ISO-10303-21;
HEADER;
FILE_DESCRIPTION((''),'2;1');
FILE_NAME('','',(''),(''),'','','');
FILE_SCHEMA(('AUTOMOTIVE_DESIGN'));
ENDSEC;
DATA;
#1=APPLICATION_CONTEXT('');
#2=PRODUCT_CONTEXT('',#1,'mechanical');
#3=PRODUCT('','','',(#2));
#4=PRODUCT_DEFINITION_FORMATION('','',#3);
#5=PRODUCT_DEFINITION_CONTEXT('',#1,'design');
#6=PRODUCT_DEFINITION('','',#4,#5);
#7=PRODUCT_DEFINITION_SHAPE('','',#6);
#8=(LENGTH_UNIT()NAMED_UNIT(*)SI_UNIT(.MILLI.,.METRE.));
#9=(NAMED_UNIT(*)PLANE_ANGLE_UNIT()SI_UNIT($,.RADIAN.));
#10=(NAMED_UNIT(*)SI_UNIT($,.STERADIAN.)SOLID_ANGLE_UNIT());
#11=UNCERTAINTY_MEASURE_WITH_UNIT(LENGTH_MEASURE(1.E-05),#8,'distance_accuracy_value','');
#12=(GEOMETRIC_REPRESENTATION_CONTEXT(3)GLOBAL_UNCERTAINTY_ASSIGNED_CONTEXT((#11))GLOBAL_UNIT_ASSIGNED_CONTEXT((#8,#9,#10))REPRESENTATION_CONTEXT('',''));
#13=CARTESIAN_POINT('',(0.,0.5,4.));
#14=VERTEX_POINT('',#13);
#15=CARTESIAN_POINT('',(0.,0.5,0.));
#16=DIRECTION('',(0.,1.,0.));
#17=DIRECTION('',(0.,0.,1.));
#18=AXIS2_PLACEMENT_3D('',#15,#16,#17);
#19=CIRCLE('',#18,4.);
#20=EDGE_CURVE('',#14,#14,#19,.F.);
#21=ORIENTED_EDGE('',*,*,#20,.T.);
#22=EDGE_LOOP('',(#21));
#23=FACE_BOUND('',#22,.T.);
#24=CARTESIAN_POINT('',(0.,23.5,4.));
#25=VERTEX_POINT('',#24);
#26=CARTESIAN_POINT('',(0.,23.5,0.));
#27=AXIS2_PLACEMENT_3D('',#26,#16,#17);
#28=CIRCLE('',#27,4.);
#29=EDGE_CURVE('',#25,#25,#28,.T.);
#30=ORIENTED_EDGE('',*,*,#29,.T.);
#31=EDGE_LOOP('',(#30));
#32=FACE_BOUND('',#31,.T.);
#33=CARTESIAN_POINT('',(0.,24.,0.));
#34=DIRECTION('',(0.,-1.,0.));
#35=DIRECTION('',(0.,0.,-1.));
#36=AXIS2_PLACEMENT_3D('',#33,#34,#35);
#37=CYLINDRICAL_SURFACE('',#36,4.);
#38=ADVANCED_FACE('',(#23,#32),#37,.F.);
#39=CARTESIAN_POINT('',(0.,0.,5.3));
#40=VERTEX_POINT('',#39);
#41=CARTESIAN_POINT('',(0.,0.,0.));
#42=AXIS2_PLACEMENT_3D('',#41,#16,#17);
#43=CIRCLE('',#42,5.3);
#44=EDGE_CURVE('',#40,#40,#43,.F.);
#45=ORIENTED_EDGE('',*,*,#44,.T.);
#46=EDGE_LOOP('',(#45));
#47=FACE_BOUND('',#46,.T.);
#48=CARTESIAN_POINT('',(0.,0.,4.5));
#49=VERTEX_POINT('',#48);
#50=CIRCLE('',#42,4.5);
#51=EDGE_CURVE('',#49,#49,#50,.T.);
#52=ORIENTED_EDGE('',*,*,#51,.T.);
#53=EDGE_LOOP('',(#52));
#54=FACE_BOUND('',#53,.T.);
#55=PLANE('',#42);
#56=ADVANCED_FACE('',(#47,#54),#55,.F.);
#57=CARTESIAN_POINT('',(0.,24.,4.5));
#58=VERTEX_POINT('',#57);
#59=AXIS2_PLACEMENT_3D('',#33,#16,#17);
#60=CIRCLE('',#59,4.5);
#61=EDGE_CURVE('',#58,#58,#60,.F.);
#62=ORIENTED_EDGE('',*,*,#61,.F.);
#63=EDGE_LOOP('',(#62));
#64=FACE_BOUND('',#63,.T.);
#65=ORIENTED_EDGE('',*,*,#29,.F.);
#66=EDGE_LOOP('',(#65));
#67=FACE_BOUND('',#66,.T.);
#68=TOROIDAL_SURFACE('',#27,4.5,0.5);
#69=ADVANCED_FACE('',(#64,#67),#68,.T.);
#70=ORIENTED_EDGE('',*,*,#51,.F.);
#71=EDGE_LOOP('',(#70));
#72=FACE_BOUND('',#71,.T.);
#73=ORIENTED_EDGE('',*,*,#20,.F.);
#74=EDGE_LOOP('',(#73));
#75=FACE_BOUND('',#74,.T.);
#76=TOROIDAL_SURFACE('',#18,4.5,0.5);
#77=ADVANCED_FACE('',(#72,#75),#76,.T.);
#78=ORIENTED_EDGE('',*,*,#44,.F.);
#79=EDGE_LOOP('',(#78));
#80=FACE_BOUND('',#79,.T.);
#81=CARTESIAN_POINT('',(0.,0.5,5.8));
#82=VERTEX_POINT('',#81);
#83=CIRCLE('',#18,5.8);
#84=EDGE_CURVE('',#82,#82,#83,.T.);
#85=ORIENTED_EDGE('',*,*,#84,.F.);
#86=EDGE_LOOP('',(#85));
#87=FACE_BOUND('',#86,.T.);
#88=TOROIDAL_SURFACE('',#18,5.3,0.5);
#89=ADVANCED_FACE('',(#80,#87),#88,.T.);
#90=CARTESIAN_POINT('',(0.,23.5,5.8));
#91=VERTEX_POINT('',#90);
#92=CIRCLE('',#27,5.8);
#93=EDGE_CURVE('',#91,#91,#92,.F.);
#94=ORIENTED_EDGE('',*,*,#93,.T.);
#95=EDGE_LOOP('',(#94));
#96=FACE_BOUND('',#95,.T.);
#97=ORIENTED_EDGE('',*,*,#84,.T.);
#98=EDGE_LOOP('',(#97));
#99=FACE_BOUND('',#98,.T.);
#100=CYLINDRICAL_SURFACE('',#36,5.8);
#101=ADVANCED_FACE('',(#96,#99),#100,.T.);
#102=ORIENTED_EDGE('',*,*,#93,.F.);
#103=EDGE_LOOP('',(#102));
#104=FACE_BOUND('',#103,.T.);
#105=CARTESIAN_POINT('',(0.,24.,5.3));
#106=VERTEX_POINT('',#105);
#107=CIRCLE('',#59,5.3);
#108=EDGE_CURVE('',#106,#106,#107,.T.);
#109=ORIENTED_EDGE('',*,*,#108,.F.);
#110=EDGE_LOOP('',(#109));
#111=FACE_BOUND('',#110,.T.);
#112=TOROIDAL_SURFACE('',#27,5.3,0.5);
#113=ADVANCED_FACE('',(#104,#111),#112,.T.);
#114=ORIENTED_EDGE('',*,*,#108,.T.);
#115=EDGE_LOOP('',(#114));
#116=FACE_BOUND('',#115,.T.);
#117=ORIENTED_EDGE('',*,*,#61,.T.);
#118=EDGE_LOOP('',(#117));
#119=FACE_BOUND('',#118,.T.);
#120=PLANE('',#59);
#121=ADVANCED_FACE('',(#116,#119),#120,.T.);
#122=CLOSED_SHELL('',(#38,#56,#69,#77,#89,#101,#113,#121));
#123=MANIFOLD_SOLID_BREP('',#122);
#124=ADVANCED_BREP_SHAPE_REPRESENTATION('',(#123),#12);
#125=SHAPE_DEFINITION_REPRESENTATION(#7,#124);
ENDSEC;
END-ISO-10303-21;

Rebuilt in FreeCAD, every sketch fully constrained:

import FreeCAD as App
import Part
import Sketcher

V = App.Vector


def edges_at(feature, points):
    """Names of the edges that pass closest to the given points."""
    edges = feature.Shape.Edges
    near = lambda p: min(range(len(edges)), key=lambda i: edges[i].distToShape(Part.Vertex(*p))[0])
    return sorted({f"Edge{near(p) + 1}" for p in points})

doc = App.newDocument("Part")
body = doc.addObject("PartDesign::Body", "Body")

sketch1 = body.newObject("Sketcher::SketchObject", "Sketch")
sketch1.AttachmentSupport = (doc.getObject("XZ_Plane"), [""])
sketch1.MapMode = "FlatFace"
sketch1.addGeometry([
    Part.Circle(V(0, 0, 0), V(0, 0, 1), 5.8),
    Part.Circle(V(0, 0, 0), V(0, 0, 1), 4),
], False)
sketch1.addConstraint([
    Sketcher.Constraint("Coincident", 0, 3, -1, 1),
    Sketcher.Constraint("Coincident", 1, 3, -1, 1),
    Sketcher.Constraint("Diameter", 1, 8.0),
    Sketcher.Constraint("Diameter", 0, 11.6),
])
pad1 = body.newObject("PartDesign::Pad", "Pad")
pad1.Profile = sketch1
pad1.Length = 24
pad1.Reversed = True
doc.recompute()

fillet = body.newObject("PartDesign::Fillet", "Fillet")
fillet.Base = (pad1, edges_at(pad1, [(0, 0, -5.8), (0, 24, -5.8)]))
fillet.Radius = 0.5
doc.recompute()

fillet2 = body.newObject("PartDesign::Fillet", "Fillet001")
fillet2.Base = (fillet, edges_at(fillet, [(0, 0, -4), (0, 24, -4)]))
fillet2.Radius = 0.5

doc.recompute()
